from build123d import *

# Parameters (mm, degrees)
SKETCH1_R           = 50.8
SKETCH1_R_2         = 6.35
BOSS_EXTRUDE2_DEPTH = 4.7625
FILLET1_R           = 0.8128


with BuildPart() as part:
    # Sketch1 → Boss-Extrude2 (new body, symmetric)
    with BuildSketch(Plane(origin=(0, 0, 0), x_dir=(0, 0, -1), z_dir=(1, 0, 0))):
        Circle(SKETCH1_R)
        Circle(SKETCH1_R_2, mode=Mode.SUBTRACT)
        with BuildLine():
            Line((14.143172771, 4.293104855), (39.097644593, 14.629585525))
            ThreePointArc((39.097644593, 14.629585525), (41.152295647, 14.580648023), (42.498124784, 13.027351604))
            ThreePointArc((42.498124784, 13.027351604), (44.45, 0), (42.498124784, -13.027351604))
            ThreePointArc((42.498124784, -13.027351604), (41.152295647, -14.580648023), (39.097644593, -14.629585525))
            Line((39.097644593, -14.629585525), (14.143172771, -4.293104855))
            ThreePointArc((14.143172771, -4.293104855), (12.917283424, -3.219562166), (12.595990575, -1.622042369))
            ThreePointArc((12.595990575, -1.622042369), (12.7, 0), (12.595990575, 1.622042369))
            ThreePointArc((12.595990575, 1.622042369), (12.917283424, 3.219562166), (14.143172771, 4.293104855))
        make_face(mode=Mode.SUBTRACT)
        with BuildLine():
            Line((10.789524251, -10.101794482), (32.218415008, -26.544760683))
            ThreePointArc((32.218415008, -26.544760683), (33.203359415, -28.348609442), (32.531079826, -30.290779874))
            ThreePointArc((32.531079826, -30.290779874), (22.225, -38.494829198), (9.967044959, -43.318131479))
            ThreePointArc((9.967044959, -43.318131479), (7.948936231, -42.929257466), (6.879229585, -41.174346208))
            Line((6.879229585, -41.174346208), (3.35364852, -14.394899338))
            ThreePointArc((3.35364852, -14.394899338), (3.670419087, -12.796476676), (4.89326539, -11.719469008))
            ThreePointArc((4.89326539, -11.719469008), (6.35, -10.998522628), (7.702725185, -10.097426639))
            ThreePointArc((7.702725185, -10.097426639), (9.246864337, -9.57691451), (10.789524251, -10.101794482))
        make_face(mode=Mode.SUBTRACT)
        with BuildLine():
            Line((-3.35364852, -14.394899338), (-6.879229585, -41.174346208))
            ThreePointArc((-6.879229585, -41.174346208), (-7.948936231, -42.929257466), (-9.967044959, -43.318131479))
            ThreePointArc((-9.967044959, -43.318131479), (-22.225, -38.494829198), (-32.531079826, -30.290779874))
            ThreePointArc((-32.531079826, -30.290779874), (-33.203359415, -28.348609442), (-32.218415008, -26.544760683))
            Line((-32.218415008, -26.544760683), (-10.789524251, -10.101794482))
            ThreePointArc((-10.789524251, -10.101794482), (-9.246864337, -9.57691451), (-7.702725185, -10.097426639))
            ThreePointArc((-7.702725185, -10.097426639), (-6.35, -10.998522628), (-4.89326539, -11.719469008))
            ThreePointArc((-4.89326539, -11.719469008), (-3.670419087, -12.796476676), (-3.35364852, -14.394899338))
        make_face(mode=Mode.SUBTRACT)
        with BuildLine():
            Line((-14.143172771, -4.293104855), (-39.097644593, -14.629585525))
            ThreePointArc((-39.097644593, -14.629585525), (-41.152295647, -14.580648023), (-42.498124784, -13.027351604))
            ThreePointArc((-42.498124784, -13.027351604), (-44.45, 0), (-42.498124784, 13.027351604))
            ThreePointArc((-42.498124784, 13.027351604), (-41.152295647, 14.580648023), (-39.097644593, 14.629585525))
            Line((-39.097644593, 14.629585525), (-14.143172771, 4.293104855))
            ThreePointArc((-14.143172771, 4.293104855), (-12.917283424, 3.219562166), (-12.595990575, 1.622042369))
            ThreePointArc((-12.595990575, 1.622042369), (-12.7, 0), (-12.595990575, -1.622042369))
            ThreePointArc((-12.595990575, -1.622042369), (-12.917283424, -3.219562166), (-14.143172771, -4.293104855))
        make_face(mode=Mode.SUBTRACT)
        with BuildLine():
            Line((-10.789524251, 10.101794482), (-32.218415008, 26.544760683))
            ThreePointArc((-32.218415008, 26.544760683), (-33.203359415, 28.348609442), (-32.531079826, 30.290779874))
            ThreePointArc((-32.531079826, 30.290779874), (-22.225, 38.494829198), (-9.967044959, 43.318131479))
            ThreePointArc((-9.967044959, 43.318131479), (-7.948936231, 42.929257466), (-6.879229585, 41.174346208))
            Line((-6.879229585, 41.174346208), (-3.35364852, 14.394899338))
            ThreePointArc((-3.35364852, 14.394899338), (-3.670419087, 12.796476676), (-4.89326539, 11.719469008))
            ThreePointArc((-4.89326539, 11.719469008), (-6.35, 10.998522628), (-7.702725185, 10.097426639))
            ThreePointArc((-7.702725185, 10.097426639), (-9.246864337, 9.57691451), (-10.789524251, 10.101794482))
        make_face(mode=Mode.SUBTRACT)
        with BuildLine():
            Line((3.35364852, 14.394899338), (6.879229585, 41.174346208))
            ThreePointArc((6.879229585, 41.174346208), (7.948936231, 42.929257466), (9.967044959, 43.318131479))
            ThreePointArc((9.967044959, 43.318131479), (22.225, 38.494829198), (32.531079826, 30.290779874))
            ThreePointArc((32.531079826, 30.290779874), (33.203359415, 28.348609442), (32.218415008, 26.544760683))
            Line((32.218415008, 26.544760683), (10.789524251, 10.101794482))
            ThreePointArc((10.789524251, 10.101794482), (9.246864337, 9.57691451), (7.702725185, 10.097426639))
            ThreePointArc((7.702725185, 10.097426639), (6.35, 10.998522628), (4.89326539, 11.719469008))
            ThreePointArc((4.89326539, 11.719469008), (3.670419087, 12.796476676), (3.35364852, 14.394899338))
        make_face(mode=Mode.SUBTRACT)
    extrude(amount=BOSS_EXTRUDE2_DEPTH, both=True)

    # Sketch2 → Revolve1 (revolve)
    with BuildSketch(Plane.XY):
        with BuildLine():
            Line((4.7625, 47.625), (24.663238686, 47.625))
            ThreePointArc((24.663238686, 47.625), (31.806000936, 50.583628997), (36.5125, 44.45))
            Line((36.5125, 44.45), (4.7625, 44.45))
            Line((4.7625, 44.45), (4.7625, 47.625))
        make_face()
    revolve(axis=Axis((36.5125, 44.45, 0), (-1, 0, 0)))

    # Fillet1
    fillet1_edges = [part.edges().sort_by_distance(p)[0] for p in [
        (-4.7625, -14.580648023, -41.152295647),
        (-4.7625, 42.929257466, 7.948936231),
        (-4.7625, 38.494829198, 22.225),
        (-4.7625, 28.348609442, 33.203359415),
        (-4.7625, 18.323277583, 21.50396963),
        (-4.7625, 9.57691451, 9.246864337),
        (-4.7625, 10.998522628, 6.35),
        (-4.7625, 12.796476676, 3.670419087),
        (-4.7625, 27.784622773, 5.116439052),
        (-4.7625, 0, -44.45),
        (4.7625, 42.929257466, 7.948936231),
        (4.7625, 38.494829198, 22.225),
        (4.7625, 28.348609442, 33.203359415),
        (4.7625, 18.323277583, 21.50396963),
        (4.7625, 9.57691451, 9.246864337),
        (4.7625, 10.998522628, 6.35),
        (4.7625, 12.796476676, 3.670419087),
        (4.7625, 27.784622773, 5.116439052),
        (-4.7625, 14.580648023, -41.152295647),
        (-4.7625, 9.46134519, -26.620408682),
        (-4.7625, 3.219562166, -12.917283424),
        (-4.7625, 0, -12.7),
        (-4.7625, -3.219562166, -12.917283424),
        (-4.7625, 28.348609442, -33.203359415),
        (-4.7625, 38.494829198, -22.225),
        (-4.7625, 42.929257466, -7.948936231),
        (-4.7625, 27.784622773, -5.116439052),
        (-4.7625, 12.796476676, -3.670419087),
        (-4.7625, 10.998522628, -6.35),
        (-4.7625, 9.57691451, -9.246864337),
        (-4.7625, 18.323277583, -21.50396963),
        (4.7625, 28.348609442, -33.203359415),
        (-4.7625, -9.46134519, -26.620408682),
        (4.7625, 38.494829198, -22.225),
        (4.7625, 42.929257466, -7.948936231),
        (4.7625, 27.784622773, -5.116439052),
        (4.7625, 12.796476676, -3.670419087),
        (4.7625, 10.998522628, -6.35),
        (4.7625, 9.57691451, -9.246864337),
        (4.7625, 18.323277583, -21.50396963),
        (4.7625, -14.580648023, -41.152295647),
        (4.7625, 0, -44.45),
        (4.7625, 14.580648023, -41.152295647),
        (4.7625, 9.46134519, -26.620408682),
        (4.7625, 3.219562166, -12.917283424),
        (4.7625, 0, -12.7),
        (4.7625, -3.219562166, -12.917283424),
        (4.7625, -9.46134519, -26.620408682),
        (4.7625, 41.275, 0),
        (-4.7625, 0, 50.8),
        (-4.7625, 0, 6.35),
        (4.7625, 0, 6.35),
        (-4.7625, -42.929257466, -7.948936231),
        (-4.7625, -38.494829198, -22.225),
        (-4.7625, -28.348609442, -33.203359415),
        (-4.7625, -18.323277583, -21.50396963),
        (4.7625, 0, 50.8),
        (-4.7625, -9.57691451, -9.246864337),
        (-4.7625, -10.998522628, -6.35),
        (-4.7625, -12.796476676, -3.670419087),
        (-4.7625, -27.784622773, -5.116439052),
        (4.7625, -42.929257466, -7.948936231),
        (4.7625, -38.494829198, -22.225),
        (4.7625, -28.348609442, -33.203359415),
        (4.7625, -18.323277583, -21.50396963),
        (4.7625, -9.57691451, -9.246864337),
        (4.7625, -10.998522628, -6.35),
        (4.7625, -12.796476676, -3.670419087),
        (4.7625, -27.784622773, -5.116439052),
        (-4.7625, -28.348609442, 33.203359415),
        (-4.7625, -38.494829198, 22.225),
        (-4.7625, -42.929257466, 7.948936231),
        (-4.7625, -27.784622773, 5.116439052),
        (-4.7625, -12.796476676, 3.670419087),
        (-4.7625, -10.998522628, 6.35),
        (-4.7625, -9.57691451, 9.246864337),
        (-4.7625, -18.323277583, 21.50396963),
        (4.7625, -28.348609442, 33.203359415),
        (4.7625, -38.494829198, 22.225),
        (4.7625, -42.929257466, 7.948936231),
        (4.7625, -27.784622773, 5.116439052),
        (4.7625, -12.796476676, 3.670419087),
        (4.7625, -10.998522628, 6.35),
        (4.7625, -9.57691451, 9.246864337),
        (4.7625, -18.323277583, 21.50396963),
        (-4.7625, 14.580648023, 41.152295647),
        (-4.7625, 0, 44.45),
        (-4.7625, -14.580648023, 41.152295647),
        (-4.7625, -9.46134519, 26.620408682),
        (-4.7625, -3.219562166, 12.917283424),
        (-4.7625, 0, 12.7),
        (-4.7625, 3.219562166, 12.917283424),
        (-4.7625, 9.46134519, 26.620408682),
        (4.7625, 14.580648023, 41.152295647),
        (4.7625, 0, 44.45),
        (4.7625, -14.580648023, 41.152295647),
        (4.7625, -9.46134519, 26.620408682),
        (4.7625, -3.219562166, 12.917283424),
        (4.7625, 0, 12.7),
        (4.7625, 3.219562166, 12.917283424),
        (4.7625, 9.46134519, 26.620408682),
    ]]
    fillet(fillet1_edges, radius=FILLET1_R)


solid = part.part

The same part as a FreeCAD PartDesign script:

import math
import FreeCAD as App
import Part
import Sketcher

V = App.Vector
Q = App.Units.Quantity


def edges_at(feature, points):
    """Names of the edges that pass closest to the given points."""
    edges = feature.Shape.Edges
    near = lambda p: min(range(len(edges)), key=lambda i: edges[i].distToShape(Part.Vertex(*p))[0])
    return sorted({f"Edge{near(p) + 1}" for p in points})

doc = App.newDocument("Part")
body = doc.addObject("PartDesign::Body", "Body")

sketch1 = doc.addObject("Sketcher::SketchObject", "Sketch")
body.addObject(sketch1)
sketch1.AttachmentSupport = (doc.YZ_Plane, [""])
sketch1.MapMode = "FlatFace"
sketch1.addGeometry(Part.Circle(V(0, 0, 0), V(0, 0, 1), 50.8), False)
sketch1.addGeometry(Part.ArcOfCircle(Part.Circle(V(-14.063363, 5.871918, 0), V(0, 0, 1), 2.54), math.radians(-97.5), math.radians(-22.662148)), False)
sketch1.addGeometry(Part.LineSegment(V(-14.394899, 3.353649, 0), V(-41.174346, 6.87923, 0)), False)
sketch1.addGeometry(Part.ArcOfCircle(Part.Circle(V(-40.84281, 9.3975, 0), V(0, 0, 1), 2.54), math.radians(167.042368), math.radians(262.5)), False)
sketch1.addGeometry(Part.ArcOfCircle(Part.Circle(V(0, 0, 0), V(0, 0, 1), 44.45), math.radians(132.957632), math.radians(167.042368)), False)
sketch1.addGeometry(Part.ArcOfCircle(Part.Circle(V(-28.559878, 30.672161, 0), V(0, 0, 1), 2.54), math.radians(37.5), math.radians(132.957632)), False)
sketch1.addGeometry(Part.LineSegment(V(-26.544761, 32.218415, 0), V(-10.101794, 10.789524, 0)), False)
sketch1.addGeometry(Part.ArcOfCircle(Part.Circle(V(-12.116912, 9.24327, 0), V(0, 0, 1), 2.54), math.radians(-37.337852), math.radians(37.5)), False)
sketch1.addGeometry(Part.ArcOfCircle(Part.Circle(V(0, 0, 0), V(0, 0, 1), 12.7), math.radians(142.662148), math.radians(157.337852)), False)
sketch1.addGeometry(Part.ArcOfCircle(Part.Circle(V(-1.946451, 15.115189, 0), V(0, 0, 1), 2.54), math.radians(-157.5), math.radians(-82.662148)), False)
sketch1.addGeometry(Part.LineSegment(V(-4.293105, 14.143173, 0), V(-14.629586, 39.097645, 0)), False)
sketch1.addGeometry(Part.ArcOfCircle(Part.Circle(V(-12.282932, 40.069661, 0), V(0, 0, 1), 2.54), math.radians(107.042368), math.radians(202.5)), False)
sketch1.addGeometry(Part.ArcOfCircle(Part.Circle(V(0, 0, 0), V(0, 0, 1), 44.45), math.radians(72.957632), math.radians(107.042368)), False)
sketch1.addGeometry(Part.ArcOfCircle(Part.Circle(V(12.282932, 40.069661, 0), V(0, 0, 1), 2.54), math.radians(-22.5), math.radians(72.957632)), False)
sketch1.addGeometry(Part.LineSegment(V(14.629586, 39.097645, 0), V(4.293105, 14.143173, 0)), False)
sketch1.addGeometry(Part.ArcOfCircle(Part.Circle(V(1.946451, 15.115189, 0), V(0, 0, 1), 2.54), math.radians(-97.337852), math.radians(-22.5)), False)
sketch1.addGeometry(Part.ArcOfCircle(Part.Circle(V(0, 0, 0), V(0, 0, 1), 12.7), math.radians(82.662148), math.radians(97.337852)), False)
sketch1.addGeometry(Part.ArcOfCircle(Part.Circle(V(-12.116912, -9.24327, 0), V(0, 0, 1), 2.54), math.radians(-37.5), math.radians(37.337852)), False)
sketch1.addGeometry(Part.LineSegment(V(-10.101794, -10.789524, 0), V(-26.544761, -32.218415, 0)), False)
sketch1.addGeometry(Part.ArcOfCircle(Part.Circle(V(-28.559878, -30.672161, 0), V(0, 0, 1), 2.54), math.radians(-132.957632), math.radians(-37.5)), False)
sketch1.addGeometry(Part.ArcOfCircle(Part.Circle(V(0, 0, 0), V(0, 0, 1), 44.45), math.radians(-167.042368), math.radians(-132.957632)), False)
sketch1.addGeometry(Part.ArcOfCircle(Part.Circle(V(-40.84281, -9.3975, 0), V(0, 0, 1), 2.54), math.radians(97.5), math.radians(192.957632)), False)
sketch1.addGeometry(Part.LineSegment(V(-41.174346, -6.87923, 0), V(-14.394899, -3.353649, 0)), False)
sketch1.addGeometry(Part.ArcOfCircle(Part.Circle(V(-14.063363, -5.871918, 0), V(0, 0, 1), 2.54), math.radians(22.662148), math.radians(97.5)), False)
sketch1.addGeometry(Part.ArcOfCircle(Part.Circle(V(0, 0, 0), V(0, 0, 1), 12.7), math.radians(-157.337852), math.radians(-142.662148)), False)
sketch1.addGeometry(Part.Circle(V(0, 0, 0), V(0, 0, 1), 6.35), False)
sketch1.addGeometry(Part.ArcOfCircle(Part.Circle(V(1.946451, -15.115189, 0), V(0, 0, 1), 2.54), math.radians(22.5), math.radians(97.337852)), False)
sketch1.addGeometry(Part.LineSegment(V(4.293105, -14.143173, 0), V(14.629586, -39.097645, 0)), False)
sketch1.addGeometry(Part.ArcOfCircle(Part.Circle(V(12.282932, -40.069661, 0), V(0, 0, 1), 2.54), math.radians(-72.957632), math.radians(22.5)), False)
sketch1.addGeometry(Part.ArcOfCircle(Part.Circle(V(0, 0, 0), V(0, 0, 1), 44.45), math.radians(-107.042368), math.radians(-72.957632)), False)
sketch1.addGeometry(Part.ArcOfCircle(Part.Circle(V(-12.282932, -40.069661, 0), V(0, 0, 1), 2.54), math.radians(157.5), math.radians(252.957632)), False)
sketch1.addGeometry(Part.LineSegment(V(-14.629586, -39.097645, 0), V(-4.293105, -14.143173, 0)), False)
sketch1.addGeometry(Part.ArcOfCircle(Part.Circle(V(-1.946451, -15.115189, 0), V(0, 0, 1), 2.54), math.radians(82.662148), math.radians(157.5)), False)
sketch1.addGeometry(Part.ArcOfCircle(Part.Circle(V(0, 0, 0), V(0, 0, 1), 12.7), math.radians(-97.337852), math.radians(-82.662148)), False)
sketch1.addGeometry(Part.ArcOfCircle(Part.Circle(V(12.116912, 9.24327, 0), V(0, 0, 1), 2.54), math.radians(142.5), math.radians(217.337852)), False)
sketch1.addGeometry(Part.LineSegment(V(10.101794, 10.789524, 0), V(26.544761, 32.218415, 0)), False)
sketch1.addGeometry(Part.ArcOfCircle(Part.Circle(V(28.559878, 30.672161, 0), V(0, 0, 1), 2.54), math.radians(47.042368), math.radians(142.5)), False)
sketch1.addGeometry(Part.ArcOfCircle(Part.Circle(V(0, 0, 0), V(0, 0, 1), 44.45), math.radians(12.957632), math.radians(47.042368)), False)
sketch1.addGeometry(Part.ArcOfCircle(Part.Circle(V(40.84281, 9.3975, 0), V(0, 0, 1), 2.54), math.radians(-82.5), math.radians(12.957632)), False)
sketch1.addGeometry(Part.LineSegment(V(41.174346, 6.87923, 0), V(14.394899, 3.353649, 0)), False)
sketch1.addGeometry(Part.ArcOfCircle(Part.Circle(V(14.063363, 5.871918, 0), V(0, 0, 1), 2.54), math.radians(-157.337852), math.radians(-82.5)), False)
sketch1.addGeometry(Part.ArcOfCircle(Part.Circle(V(0, 0, 0), V(0, 0, 1), 12.7), math.radians(22.662148), math.radians(37.337852)), False)
sketch1.addGeometry(Part.ArcOfCircle(Part.Circle(V(14.063363, -5.871918, 0), V(0, 0, 1), 2.54), math.radians(82.5), math.radians(157.337852)), False)
sketch1.addGeometry(Part.LineSegment(V(14.394899, -3.353649, 0), V(41.174346, -6.87923, 0)), False)
sketch1.addGeometry(Part.ArcOfCircle(Part.Circle(V(40.84281, -9.3975, 0), V(0, 0, 1), 2.54), math.radians(-12.957632), math.radians(82.5)), False)
sketch1.addGeometry(Part.ArcOfCircle(Part.Circle(V(0, 0, 0), V(0, 0, 1), 44.45), math.radians(-47.042368), math.radians(-12.957632)), False)
sketch1.addGeometry(Part.ArcOfCircle(Part.Circle(V(28.559878, -30.672161, 0), V(0, 0, 1), 2.54), math.radians(-142.5), math.radians(-47.042368)), False)
sketch1.addGeometry(Part.LineSegment(V(26.544761, -32.218415, 0), V(10.101794, -10.789524, 0)), False)
sketch1.addGeometry(Part.ArcOfCircle(Part.Circle(V(12.116912, -9.24327, 0), V(0, 0, 1), 2.54), math.radians(142.662148), math.radians(217.5)), False)
sketch1.addGeometry(Part.ArcOfCircle(Part.Circle(V(0, 0, 0), V(0, 0, 1), 12.7), math.radians(-37.337852), math.radians(-22.662148)), False)
sketch1.addConstraint(Sketcher.Constraint("Tangent", 1, 1, 2, 1))
sketch1.addConstraint(Sketcher.Constraint("Tangent", 2, 2, 3, 2))
sketch1.addConstraint(Sketcher.Constraint("Tangent", 3, 1, 4, 2))
sketch1.addConstraint(Sketcher.Constraint("Tangent", 4, 1, 5, 2))
sketch1.addConstraint(Sketcher.Constraint("Tangent", 5, 1, 6, 1))
sketch1.addConstraint(Sketcher.Constraint("Tangent", 6, 2, 7, 2))
sketch1.addConstraint(Sketcher.Constraint("Tangent", 7, 1, 8, 1))
sketch1.addConstraint(Sketcher.Constraint("Tangent", 8, 2, 1, 2))
sketch1.addConstraint(Sketcher.Constraint("Tangent", 9, 1, 10, 1))
sketch1.addConstraint(Sketcher.Constraint("Tangent", 10, 2, 11, 2))
sketch1.addConstraint(Sketcher.Constraint("Tangent", 11, 1, 12, 2))
sketch1.addConstraint(Sketcher.Constraint("Tangent", 12, 1, 13, 2))
sketch1.addConstraint(Sketcher.Constraint("Tangent", 13, 1, 14, 1))
sketch1.addConstraint(Sketcher.Constraint("Tangent", 14, 2, 15, 2))
sketch1.addConstraint(Sketcher.Constraint("Tangent", 15, 1, 16, 1))
sketch1.addConstraint(Sketcher.Constraint("Tangent", 16, 2, 9, 2))
sketch1.addConstraint(Sketcher.Constraint("Tangent", 17, 1, 18, 1))
sketch1.addConstraint(Sketcher.Constraint("Tangent", 18, 2, 19, 2))
sketch1.addConstraint(Sketcher.Constraint("Tangent", 19, 1, 20, 2))
sketch1.addConstraint(Sketcher.Constraint("Tangent", 20, 1, 21, 2))
sketch1.addConstraint(Sketcher.Constraint("Tangent", 21, 1, 22, 1))
sketch1.addConstraint(Sketcher.Constraint("Tangent", 22, 2, 23, 2))
sketch1.addConstraint(Sketcher.Constraint("Tangent", 23, 1, 24, 1))
sketch1.addConstraint(Sketcher.Constraint("Tangent", 24, 2, 17, 2))
sketch1.addConstraint(Sketcher.Constraint("Tangent", 26, 1, 27, 1))
sketch1.addConstraint(Sketcher.Constraint("Tangent", 27, 2, 28, 2))
sketch1.addConstraint(Sketcher.Constraint("Tangent", 28, 1, 29, 2))
sketch1.addConstraint(Sketcher.Constraint("Tangent", 29, 1, 30, 2))
sketch1.addConstraint(Sketcher.Constraint("Tangent", 30, 1, 31, 1))
sketch1.addConstraint(Sketcher.Constraint("Tangent", 31, 2, 32, 2))
sketch1.addConstraint(Sketcher.Constraint("Tangent", 32, 1, 33, 1))
sketch1.addConstraint(Sketcher.Constraint("Tangent", 33, 2, 26, 2))
sketch1.addConstraint(Sketcher.Constraint("Tangent", 34, 1, 35, 1))
sketch1.addConstraint(Sketcher.Constraint("Tangent", 35, 2, 36, 2))
sketch1.addConstraint(Sketcher.Constraint("Tangent", 36, 1, 37, 2))
sketch1.addConstraint(Sketcher.Constraint("Tangent", 37, 1, 38, 2))
sketch1.addConstraint(Sketcher.Constraint("Tangent", 38, 1, 39, 1))
sketch1.addConstraint(Sketcher.Constraint("Tangent", 39, 2, 40, 2))
sketch1.addConstraint(Sketcher.Constraint("Tangent", 40, 1, 41, 1))
sketch1.addConstraint(Sketcher.Constraint("Tangent", 41, 2, 34, 2))
sketch1.addConstraint(Sketcher.Constraint("Tangent", 42, 1, 43, 1))
sketch1.addConstraint(Sketcher.Constraint("Tangent", 43, 2, 44, 2))
sketch1.addConstraint(Sketcher.Constraint("Tangent", 44, 1, 45, 2))
sketch1.addConstraint(Sketcher.Constraint("Tangent", 45, 1, 46, 2))
sketch1.addConstraint(Sketcher.Constraint("Tangent", 46, 1, 47, 1))
sketch1.addConstraint(Sketcher.Constraint("Tangent", 47, 2, 48, 2))
sketch1.addConstraint(Sketcher.Constraint("Tangent", 48, 1, 49, 1))
sketch1.addConstraint(Sketcher.Constraint("Tangent", 49, 2, 42, 2))
sketch1.addConstraint(Sketcher.Constraint("Coincident", 0, 3, -1, 1))
sketch1.addConstraint(Sketcher.Constraint("Coincident", 4, 3, -1, 1))
sketch1.addConstraint(Sketcher.Constraint("Coincident", 8, 3, -1, 1))
sketch1.addConstraint(Sketcher.Constraint("Coincident", 12, 3, -1, 1))
sketch1.addConstraint(Sketcher.Constraint("Coincident", 16, 3, -1, 1))
sketch1.addConstraint(Sketcher.Constraint("Coincident", 20, 3, -1, 1))
sketch1.addConstraint(Sketcher.Constraint("Coincident", 24, 3, -1, 1))
sketch1.addConstraint(Sketcher.Constraint("Coincident", 25, 3, -1, 1))
sketch1.addConstraint(Sketcher.Constraint("Coincident", 29, 3, -1, 1))
sketch1.addConstraint(Sketcher.Constraint("Coincident", 33, 3, -1, 1))
sketch1.addConstraint(Sketcher.Constraint("Coincident", 37, 3, -1, 1))
sketch1.addConstraint(Sketcher.Constraint("Coincident", 41, 3, -1, 1))
sketch1.addConstraint(Sketcher.Constraint("Coincident", 45, 3, -1, 1))
sketch1.addConstraint(Sketcher.Constraint("Coincident", 49, 3, -1, 1))
sketch1.addConstraint(Sketcher.Constraint("Equal", 1, 3))
sketch1.addConstraint(Sketcher.Constraint("Equal", 3, 5))
sketch1.addConstraint(Sketcher.Constraint("Equal", 5, 7))
sketch1.addConstraint(Sketcher.Constraint("Equal", 7, 9))
sketch1.addConstraint(Sketcher.Constraint("Equal", 9, 11))
sketch1.addConstraint(Sketcher.Constraint("Equal", 4, 12))
sketch1.addConstraint(Sketcher.Constraint("Equal", 11, 13))
sketch1.addConstraint(Sketcher.Constraint("Equal", 13, 15))
sketch1.addConstraint(Sketcher.Constraint("Equal", 8, 16))
sketch1.addConstraint(Sketcher.Constraint("Equal", 15, 17))
sketch1.addConstraint(Sketcher.Constraint("Equal", 17, 19))
sketch1.addConstraint(Sketcher.Constraint("Equal", 12, 20))
sketch1.addConstraint(Sketcher.Constraint("Equal", 19, 21))
sketch1.addConstraint(Sketcher.Constraint("Equal", 21, 23))
sketch1.addConstraint(Sketcher.Constraint("Equal", 16, 24))
sketch1.addConstraint(Sketcher.Constraint("Equal", 23, 26))
sketch1.addConstraint(Sketcher.Constraint("Equal", 26, 28))
sketch1.addConstraint(Sketcher.Constraint("Equal", 20, 29))
sketch1.addConstraint(Sketcher.Constraint("Equal", 28, 30))
sketch1.addConstraint(Sketcher.Constraint("Equal", 30, 32))
sketch1.addConstraint(Sketcher.Constraint("Equal", 24, 33))
sketch1.addConstraint(Sketcher.Constraint("Equal", 32, 34))
sketch1.addConstraint(Sketcher.Constraint("Equal", 34, 36))
sketch1.addConstraint(Sketcher.Constraint("Equal", 29, 37))
sketch1.addConstraint(Sketcher.Constraint("Equal", 36, 38))
sketch1.addConstraint(Sketcher.Constraint("Equal", 38, 40))
sketch1.addConstraint(Sketcher.Constraint("Equal", 33, 41))
sketch1.addConstraint(Sketcher.Constraint("Equal", 40, 42))
sketch1.addConstraint(Sketcher.Constraint("Equal", 42, 44))
sketch1.addConstraint(Sketcher.Constraint("Equal", 37, 45))
sketch1.addConstraint(Sketcher.Constraint("Equal", 44, 46))
sketch1.addConstraint(Sketcher.Constraint("Equal", 46, 48))
sketch1.addConstraint(Sketcher.Constraint("Equal", 41, 49))
sketch1.addConstraint(Sketcher.Constraint("Symmetric", 9, 1, 26, 1, -1, 1))
sketch1.addConstraint(Sketcher.Constraint("Symmetric", 13, 1, 30, 1, -1, 1))
sketch1.addConstraint(Sketcher.Constraint("Symmetric", 17, 1, 34, 1, -1, 1))
sketch1.addConstraint(Sketcher.Constraint("Symmetric", 21, 1, 38, 1, -1, 1))
sketch1.addConstraint(Sketcher.Constraint("Symmetric", 1, 1, 42, 1, -1, 1))
sketch1.addConstraint(Sketcher.Constraint("Symmetric", 5, 1, 46, 1, -1, 1))
sketch1.addConstraint(Sketcher.Constraint("Symmetric", 10, 2, 13, 1, -2))
sketch1.addConstraint(Sketcher.Constraint("Symmetric", 6, 2, 34, 1, -2))
sketch1.addConstraint(Sketcher.Constraint("Symmetric", 2, 2, 38, 1, -2))
sketch1.addConstraint(Sketcher.Constraint("Equal", 2, 6))
sketch1.addConstraint(Sketcher.Constraint("Equal", 6, 10))
sketch1.addConstraint(Sketcher.Constraint("Diameter", 0, Q("4 in")))
sketch1.addConstraint(Sketcher.Constraint("Diameter", 25, Q("0.5 in")))
sketch1.addConstraint(Sketcher.Constraint("Radius", 1, Q("0.1 in")))
sketch1.addConstraint(Sketcher.Constraint("Radius", 8, Q("0.5 in")))
sketch1.addConstraint(Sketcher.Constraint("Radius", 4, Q("1.75 in")))
sketch1.addConstraint(Sketcher.Constraint("Angle", 2, Q("172.5 deg")))
sketch1.addConstraint(Sketcher.Constraint("Angle", 6, Q("-52.5 deg")))
sketch1.addConstraint(Sketcher.Constraint("Angle", 10, Q("112.5 deg")))
sketch1.addConstraint(Sketcher.Constraint("DistanceY", -1, 1, 3, 3, 9.3975))
pad1 = doc.addObject("PartDesign::Pad", "Pad")
body.addObject(pad1)
pad1.Profile = sketch1
pad1.Length = Q("0.375 in")
pad1.Midplane = True

sketch2 = doc.addObject("Sketcher::SketchObject", "Sketch001")
body.addObject(sketch2)
sketch2.AttachmentSupport = (doc.XY_Plane, [""])
sketch2.MapMode = "FlatFace"
sketch2.addGeometry(Part.LineSegment(V(24.663239, 47.625, 0), V(4.7625, 47.625, 0)), False)
sketch2.addGeometry(Part.LineSegment(V(4.7625, 47.625, 0), V(4.7625, 44.45, 0)), False)
sketch2.addGeometry(Part.LineSegment(V(4.7625, 44.45, 0), V(36.5125, 44.45, 0)), False)
sketch2.addGeometry(Part.ArcOfCircle(Part.Circle(V(30.1625, 44.45, 0), V(0, 0, 1), 6.35), math.radians(0), math.radians(150)), False)
sketch2.addGeometry(Part.LineSegment(V(36.5125, 44.45, 0), V(4.7625, 44.45, 0)), True)
sketch2.addConstraint(Sketcher.Constraint("Coincident", 0, 2, 1, 1))
sketch2.addConstraint(Sketcher.Constraint("Coincident", 1, 2, 2, 1))
sketch2.addConstraint(Sketcher.Constraint("Coincident", 2, 2, 3, 1))
sketch2.addConstraint(Sketcher.Constraint("Coincident", 3, 2, 0, 1))
sketch2.addConstraint(Sketcher.Constraint("Horizontal", 0))
sketch2.addConstraint(Sketcher.Constraint("Vertical", 1))
sketch2.addConstraint(Sketcher.Constraint("Horizontal", 2))
sketch2.addConstraint(Sketcher.Constraint("Horizontal", 4))
sketch2.addConstraint(Sketcher.Constraint("Coincident", 4, 1, 2, 2))
sketch2.addConstraint(Sketcher.Constraint("Horizontal", 3, 3, 1, 2))
sketch2.addConstraint(Sketcher.Constraint("Vertical", 0, 2, 4, 2))
sketch2.addConstraint(Sketcher.Constraint("Radius", 3, Q("0.25 in")))
sketch2.addConstraint(Sketcher.Constraint("DistanceX", 0, 2, 3, 3, Q("1 in")))
sketch2.addConstraint(Sketcher.Constraint("DistanceY", 1, 2, 1, 1, Q("0.125 in")))
sketch2.addConstraint(Sketcher.Constraint("DistanceY", -1, 1, 3, 3, Q("1.75 in")))
sketch2.addConstraint(Sketcher.Constraint("DistanceX", -1, 1, 3, 3, Q("1.1875 in")))
revolution = doc.addObject("PartDesign::Revolution", "Revolution")
body.addObject(revolution)
revolution.Profile = sketch2
revolution.ReferenceAxis = (sketch2, ["Axis0"])
revolution.Angle = 360
doc.recompute()

fillet = doc.addObject("PartDesign::Fillet", "Fillet")
body.addObject(fillet)
fillet.Base = (revolution, edges_at(revolution, [
    (-4.763, -14.581, -41.152),
    (-4.763, 42.929, 7.949),
    (-4.763, 38.495, 22.225),
    (-4.763, 28.349, 33.203),
    (-4.763, 18.323, 21.504),
    (-4.763, 9.577, 9.247),
    (-4.763, 10.999, 6.35),
    (-4.763, 12.796, 3.67),
    (-4.763, 27.785, 5.116),
    (-4.763, 0, -44.45),
    (4.763, 42.929, 7.949),
    (4.763, 38.495, 22.225),
    (4.763, 28.349, 33.203),
    (4.763, 18.323, 21.504),
    (4.763, 9.577, 9.247),
    (4.763, 10.999, 6.35),
    (4.763, 12.796, 3.67),
    (4.763, 27.785, 5.116),
    (-4.763, 14.581, -41.152),
    (-4.763, 9.461, -26.62),
    (-4.763, 3.22, -12.917),
    (-4.763, 0, -12.7),
    (-4.763, -3.22, -12.917),
    (-4.763, 28.349, -33.203),
    (-4.763, 38.495, -22.225),
    (-4.763, 42.929, -7.949),
    (-4.763, 27.785, -5.116),
    (-4.763, 12.796, -3.67),
    (-4.763, 10.999, -6.35),
    (-4.763, 9.577, -9.247),
    (-4.763, 18.323, -21.504),
    (4.763, 28.349, -33.203),
    (-4.763, -9.461, -26.62),
    (4.763, 38.495, -22.225),
    (4.763, 42.929, -7.949),
    (4.763, 27.785, -5.116),
    (4.763, 12.796, -3.67),
    (4.763, 10.999, -6.35),
    (4.763, 9.577, -9.247),
    (4.763, 18.323, -21.504),
    (4.763, -14.581, -41.152),
    (4.763, 0, -44.45),
    (4.763, 14.581, -41.152),
    (4.763, 9.461, -26.62),
    (4.763, 3.22, -12.917),
    (4.763, 0, -12.7),
    (4.763, -3.22, -12.917),
    (4.763, -9.461, -26.62),
    (4.763, 41.275, 0),
    (-4.763, 0, 50.8),
    (-4.763, 0, 6.35),
    (4.763, 0, 6.35),
    (-4.763, -42.929, -7.949),
    (-4.763, -38.495, -22.225),
    (-4.763, -28.349, -33.203),
    (-4.763, -18.323, -21.504),
    (4.763, 0, 50.8),
    (-4.763, -9.577, -9.247),
    (-4.763, -10.999, -6.35),
    (-4.763, -12.796, -3.67),
    (-4.763, -27.785, -5.116),
    (4.763, -42.929, -7.949),
    (4.763, -38.495, -22.225),
    (4.763, -28.349, -33.203),
    (4.763, -18.323, -21.504),
    (4.763, -9.577, -9.247),
    (4.763, -10.999, -6.35),
    (4.763, -12.796, -3.67),
    (4.763, -27.785, -5.116),
    (-4.763, -28.349, 33.203),
    (-4.763, -38.495, 22.225),
    (-4.763, -42.929, 7.949),
    (-4.763, -27.785, 5.116),
    (-4.763, -12.796, 3.67),
    (-4.763, -10.999, 6.35),
    (-4.763, -9.577, 9.247),
    (-4.763, -18.323, 21.504),
    (4.763, -28.349, 33.203),
    (4.763, -38.495, 22.225),
    (4.763, -42.929, 7.949),
    (4.763, -27.785, 5.116),
    (4.763, -12.796, 3.67),
    (4.763, -10.999, 6.35),
    (4.763, -9.577, 9.247),
    (4.763, -18.323, 21.504),
    (-4.763, 14.581, 41.152),
    (-4.763, 0, 44.45),
    (-4.763, -14.581, 41.152),
    (-4.763, -9.461, 26.62),
    (-4.763, -3.22, 12.917),
    (-4.763, 0, 12.7),
    (-4.763, 3.22, 12.917),
    (-4.763, 9.461, 26.62),
    (4.763, 14.581, 41.152),
    (4.763, 0, 44.45),
    (4.763, -14.581, 41.152),
    (4.763, -9.461, 26.62),
    (4.763, -3.22, 12.917),
    (4.763, 0, 12.7),
    (4.763, 3.22, 12.917),
    (4.763, 9.461, 26.62),
]))
fillet.Radius = Q("0.032 in")

doc.recompute()
